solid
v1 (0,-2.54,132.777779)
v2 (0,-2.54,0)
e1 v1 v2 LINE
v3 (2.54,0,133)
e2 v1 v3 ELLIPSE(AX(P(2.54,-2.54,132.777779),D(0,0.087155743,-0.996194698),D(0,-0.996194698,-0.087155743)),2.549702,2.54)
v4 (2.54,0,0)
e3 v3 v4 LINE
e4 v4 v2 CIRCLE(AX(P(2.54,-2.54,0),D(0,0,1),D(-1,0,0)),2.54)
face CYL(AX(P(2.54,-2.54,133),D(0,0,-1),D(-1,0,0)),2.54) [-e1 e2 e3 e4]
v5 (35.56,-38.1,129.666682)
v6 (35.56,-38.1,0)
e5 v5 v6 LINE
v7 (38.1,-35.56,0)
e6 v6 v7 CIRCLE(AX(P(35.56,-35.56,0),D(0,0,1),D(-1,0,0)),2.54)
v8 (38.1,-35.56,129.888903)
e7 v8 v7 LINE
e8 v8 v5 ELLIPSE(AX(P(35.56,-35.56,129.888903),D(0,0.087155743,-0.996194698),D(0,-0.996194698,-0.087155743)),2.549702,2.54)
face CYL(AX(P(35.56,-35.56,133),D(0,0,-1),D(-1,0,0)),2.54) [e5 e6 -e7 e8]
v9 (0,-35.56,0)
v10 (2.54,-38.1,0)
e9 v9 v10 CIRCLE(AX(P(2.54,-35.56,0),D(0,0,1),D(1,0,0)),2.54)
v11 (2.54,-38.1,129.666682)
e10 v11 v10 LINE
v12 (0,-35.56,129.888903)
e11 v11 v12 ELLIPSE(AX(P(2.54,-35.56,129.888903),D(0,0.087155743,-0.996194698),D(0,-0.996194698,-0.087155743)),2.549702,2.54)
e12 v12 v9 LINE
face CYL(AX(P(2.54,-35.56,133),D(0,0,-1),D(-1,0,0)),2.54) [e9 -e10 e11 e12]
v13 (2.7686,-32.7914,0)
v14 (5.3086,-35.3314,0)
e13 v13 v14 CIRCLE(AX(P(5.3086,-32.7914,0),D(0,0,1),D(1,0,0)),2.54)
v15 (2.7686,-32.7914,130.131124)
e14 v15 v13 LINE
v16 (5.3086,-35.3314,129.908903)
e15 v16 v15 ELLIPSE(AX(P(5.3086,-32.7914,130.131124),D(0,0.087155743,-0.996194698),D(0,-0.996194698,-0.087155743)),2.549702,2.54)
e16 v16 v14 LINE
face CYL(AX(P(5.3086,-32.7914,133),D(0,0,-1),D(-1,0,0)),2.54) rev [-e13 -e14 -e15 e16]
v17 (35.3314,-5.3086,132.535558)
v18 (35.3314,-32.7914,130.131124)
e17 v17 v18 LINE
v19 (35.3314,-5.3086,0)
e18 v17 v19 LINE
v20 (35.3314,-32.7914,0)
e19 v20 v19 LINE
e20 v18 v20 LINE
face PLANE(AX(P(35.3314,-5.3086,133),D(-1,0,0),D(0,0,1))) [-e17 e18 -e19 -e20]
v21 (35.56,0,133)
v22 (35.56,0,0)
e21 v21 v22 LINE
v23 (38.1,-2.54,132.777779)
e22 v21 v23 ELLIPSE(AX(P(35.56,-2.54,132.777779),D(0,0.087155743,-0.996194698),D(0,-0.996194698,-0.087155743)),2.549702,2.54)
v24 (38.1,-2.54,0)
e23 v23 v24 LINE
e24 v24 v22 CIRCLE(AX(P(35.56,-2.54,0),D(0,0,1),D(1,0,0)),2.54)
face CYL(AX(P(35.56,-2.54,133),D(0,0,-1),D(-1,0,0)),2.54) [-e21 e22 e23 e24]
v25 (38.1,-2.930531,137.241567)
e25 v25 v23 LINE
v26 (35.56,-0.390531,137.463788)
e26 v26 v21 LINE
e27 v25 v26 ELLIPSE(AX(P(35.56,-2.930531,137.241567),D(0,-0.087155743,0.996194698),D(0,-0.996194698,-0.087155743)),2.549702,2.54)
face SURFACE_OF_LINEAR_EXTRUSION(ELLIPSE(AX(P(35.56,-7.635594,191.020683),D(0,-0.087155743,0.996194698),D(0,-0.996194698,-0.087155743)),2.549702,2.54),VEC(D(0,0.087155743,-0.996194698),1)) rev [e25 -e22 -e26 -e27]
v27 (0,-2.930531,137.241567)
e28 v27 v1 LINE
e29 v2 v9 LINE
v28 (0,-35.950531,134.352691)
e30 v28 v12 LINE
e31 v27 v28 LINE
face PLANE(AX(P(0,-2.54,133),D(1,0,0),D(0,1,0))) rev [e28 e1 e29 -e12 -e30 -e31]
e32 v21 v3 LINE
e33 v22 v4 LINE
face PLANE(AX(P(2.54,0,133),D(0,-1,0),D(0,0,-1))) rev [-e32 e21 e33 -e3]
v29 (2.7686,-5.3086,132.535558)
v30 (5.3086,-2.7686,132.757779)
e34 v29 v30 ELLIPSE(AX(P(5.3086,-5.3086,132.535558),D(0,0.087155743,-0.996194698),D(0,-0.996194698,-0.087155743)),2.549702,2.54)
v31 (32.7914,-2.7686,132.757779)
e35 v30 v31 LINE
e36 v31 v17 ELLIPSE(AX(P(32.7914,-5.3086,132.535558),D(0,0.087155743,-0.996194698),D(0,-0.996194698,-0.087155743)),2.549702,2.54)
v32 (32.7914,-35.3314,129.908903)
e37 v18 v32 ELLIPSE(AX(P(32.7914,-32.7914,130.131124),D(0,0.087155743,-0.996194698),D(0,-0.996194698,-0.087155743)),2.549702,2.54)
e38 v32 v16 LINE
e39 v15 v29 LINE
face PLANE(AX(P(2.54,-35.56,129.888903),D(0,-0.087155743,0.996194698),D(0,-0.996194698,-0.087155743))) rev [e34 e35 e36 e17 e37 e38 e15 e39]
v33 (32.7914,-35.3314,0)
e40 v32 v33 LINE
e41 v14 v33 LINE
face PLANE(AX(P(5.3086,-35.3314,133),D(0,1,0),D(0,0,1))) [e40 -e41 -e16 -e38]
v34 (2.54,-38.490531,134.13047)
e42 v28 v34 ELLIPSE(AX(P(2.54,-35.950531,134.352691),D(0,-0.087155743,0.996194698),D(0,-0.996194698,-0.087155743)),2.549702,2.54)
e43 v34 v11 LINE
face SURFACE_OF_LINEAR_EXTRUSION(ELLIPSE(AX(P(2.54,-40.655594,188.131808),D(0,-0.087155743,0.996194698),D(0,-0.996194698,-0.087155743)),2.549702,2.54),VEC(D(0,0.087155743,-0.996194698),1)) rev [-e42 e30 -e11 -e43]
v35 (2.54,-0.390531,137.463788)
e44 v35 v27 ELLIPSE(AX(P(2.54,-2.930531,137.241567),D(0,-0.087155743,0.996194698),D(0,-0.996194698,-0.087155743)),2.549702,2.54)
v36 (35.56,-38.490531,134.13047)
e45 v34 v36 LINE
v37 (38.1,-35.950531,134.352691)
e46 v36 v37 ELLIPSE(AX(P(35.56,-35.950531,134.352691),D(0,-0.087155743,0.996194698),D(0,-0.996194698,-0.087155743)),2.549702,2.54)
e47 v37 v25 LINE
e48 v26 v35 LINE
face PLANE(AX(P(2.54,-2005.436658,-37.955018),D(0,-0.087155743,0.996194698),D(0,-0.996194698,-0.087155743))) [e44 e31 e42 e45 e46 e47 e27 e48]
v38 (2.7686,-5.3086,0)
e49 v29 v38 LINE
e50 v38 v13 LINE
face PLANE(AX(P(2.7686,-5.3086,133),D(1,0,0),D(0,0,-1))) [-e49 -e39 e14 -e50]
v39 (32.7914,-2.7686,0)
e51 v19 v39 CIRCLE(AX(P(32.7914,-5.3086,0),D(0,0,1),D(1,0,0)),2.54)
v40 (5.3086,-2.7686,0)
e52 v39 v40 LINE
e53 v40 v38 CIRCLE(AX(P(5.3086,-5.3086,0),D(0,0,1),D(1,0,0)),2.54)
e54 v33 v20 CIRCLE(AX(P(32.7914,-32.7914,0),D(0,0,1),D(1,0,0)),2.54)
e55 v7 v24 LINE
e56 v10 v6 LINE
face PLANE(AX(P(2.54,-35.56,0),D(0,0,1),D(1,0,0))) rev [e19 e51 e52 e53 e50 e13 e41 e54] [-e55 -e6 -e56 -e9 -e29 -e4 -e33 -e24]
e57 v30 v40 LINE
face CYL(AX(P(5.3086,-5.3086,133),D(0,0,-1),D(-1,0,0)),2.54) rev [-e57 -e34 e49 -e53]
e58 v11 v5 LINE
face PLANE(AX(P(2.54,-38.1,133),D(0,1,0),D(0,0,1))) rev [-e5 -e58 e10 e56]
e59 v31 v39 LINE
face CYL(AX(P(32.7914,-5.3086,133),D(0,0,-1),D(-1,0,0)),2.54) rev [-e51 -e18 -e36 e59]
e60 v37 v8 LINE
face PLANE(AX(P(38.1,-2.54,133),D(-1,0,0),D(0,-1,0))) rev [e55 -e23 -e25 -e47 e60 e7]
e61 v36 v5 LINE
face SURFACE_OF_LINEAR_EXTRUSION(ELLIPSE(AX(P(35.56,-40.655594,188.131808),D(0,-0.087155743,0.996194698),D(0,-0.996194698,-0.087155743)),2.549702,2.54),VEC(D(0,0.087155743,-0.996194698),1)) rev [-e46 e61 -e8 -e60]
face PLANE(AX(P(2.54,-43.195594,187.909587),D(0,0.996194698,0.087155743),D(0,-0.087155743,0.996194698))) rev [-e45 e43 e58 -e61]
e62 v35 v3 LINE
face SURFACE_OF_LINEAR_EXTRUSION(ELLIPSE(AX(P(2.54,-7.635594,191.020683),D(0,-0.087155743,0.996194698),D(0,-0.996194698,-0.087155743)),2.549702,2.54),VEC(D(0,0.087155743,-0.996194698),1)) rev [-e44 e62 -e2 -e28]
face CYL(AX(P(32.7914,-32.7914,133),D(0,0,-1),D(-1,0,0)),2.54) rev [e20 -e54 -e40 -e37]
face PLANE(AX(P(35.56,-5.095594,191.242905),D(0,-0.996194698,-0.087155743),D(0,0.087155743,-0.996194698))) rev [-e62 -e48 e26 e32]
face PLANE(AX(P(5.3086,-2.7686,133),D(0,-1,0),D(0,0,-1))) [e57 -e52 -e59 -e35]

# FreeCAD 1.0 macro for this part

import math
import FreeCAD as App
import Part
import Sketcher
from FreeCAD import Vector
Q = App.Units.Quantity

doc = App.newDocument("Part")
params = doc.addObject("Spreadsheet::Sheet", "Params")
for row, (alias, value) in enumerate([
    ("sketch1_radius", "0.1 in"),
    ("sketch1_width", "1.3 in"),
    ("sketch1_width2", "1.082 in"),
    ("pad1_length", "133 mm"),
    ("sketch2_width", "1.5 in"),
    ("pad2_length", "4.480839 mm"),
], start=1):
    params.set(f"A{row}", alias)
    params.set(f"B{row}", "=" + value)
    params.setAlias(f"B{row}", alias)

body = doc.addObject("PartDesign::Body", "Body")

sketch1 = body.newObject("Sketcher::SketchObject", "Sketch")
sketch1.AttachmentSupport = (doc.getObject("XY_Plane"), [""])
sketch1.MapMode = "FlatFace"
sketch1.addGeometry([
    Part.LineSegment(Vector(35.6, 0, 0), Vector(2.5, 0, 0)),
    Part.ArcOfCircle(Part.Circle(Vector(2.5, -2.5, 0), Vector(0, 0, 1), 2.5), math.radians(90), math.radians(180)),
    Part.LineSegment(Vector(0, -2.5, 0), Vector(0, -35.6, 0)),
    Part.ArcOfCircle(Part.Circle(Vector(2.5, -35.6, 0), Vector(0, 0, 1), 2.5), math.radians(-180), math.radians(-90)),
    Part.LineSegment(Vector(2.5, -38.1, 0), Vector(35.6, -38.1, 0)),
    Part.ArcOfCircle(Part.Circle(Vector(35.6, -35.6, 0), Vector(0, 0, 1), 2.5), math.radians(-90), math.radians(0)),
    Part.LineSegment(Vector(38.1, -35.6, 0), Vector(38.1, -2.5, 0)),
    Part.ArcOfCircle(Part.Circle(Vector(35.6, -2.5, 0), Vector(0, 0, 1), 2.5), math.radians(0), math.radians(90)),
    Part.LineSegment(Vector(5.3, -2.8, 0), Vector(32.8, -2.8, 0)),
    Part.ArcOfCircle(Part.Circle(Vector(32.8, -5.3, 0), Vector(0, 0, 1), 2.5), math.radians(0), math.radians(90)),
    Part.LineSegment(Vector(35.3, -5.3, 0), Vector(35.3, -32.8, 0)),
    Part.ArcOfCircle(Part.Circle(Vector(32.8, -32.8, 0), Vector(0, 0, 1), 2.5), math.radians(-90), math.radians(0)),
    Part.LineSegment(Vector(32.8, -35.3, 0), Vector(5.3, -35.3, 0)),
    Part.ArcOfCircle(Part.Circle(Vector(5.3, -32.8, 0), Vector(0, 0, 1), 2.5), math.radians(-180), math.radians(-90)),
    Part.LineSegment(Vector(2.8, -32.8, 0), Vector(2.8, -5.3, 0)),
    Part.ArcOfCircle(Part.Circle(Vector(5.3, -5.3, 0), Vector(0, 0, 1), 2.5), math.radians(90), math.radians(180)),
], False)
sketch1.addConstraint([
    Sketcher.Constraint("Tangent", 0, 2, 1, 1),
    Sketcher.Constraint("Tangent", 1, 2, 2, 1),
    Sketcher.Constraint("Tangent", 2, 2, 3, 1),
    Sketcher.Constraint("Tangent", 3, 2, 4, 1),
    Sketcher.Constraint("Tangent", 4, 2, 5, 1),
    Sketcher.Constraint("Tangent", 5, 2, 6, 1),
    Sketcher.Constraint("Tangent", 6, 2, 7, 1),
    Sketcher.Constraint("Tangent", 7, 2, 0, 1),
    Sketcher.Constraint("Tangent", 8, 2, 9, 2),
    Sketcher.Constraint("Tangent", 9, 1, 10, 1),
    Sketcher.Constraint("Tangent", 10, 2, 11, 2),
    Sketcher.Constraint("Tangent", 11, 1, 12, 1),
    Sketcher.Constraint("Tangent", 12, 2, 13, 2),
    Sketcher.Constraint("Tangent", 13, 1, 14, 1),
    Sketcher.Constraint("Tangent", 14, 2, 15, 2),
    Sketcher.Constraint("Tangent", 15, 1, 8, 1),
    Sketcher.Constraint("Horizontal", 0),
    Sketcher.Constraint("Vertical", 2),
    Sketcher.Constraint("Horizontal", 4),
    Sketcher.Constraint("Vertical", 6),
    Sketcher.Constraint("Horizontal", 8),
    Sketcher.Constraint("Vertical", 10),
    Sketcher.Constraint("Horizontal", 12),
    Sketcher.Constraint("Vertical", 14),
    Sketcher.Constraint("Equal", 1, 3),
    Sketcher.Constraint("Equal", 3, 5),
    Sketcher.Constraint("Equal", 5, 7),
    Sketcher.Constraint("Equal", 7, 9),
    Sketcher.Constraint("Equal", 9, 11),
    Sketcher.Constraint("Equal", 11, 13),
    Sketcher.Constraint("Equal", 13, 15),
    Sketcher.Constraint("PointOnObject", 0, 2, -1),
    Sketcher.Constraint("PointOnObject", 1, 2, -2),
    Sketcher.Constraint("Equal", 4, 2),
    Sketcher.Constraint("Equal", 12, 10),
    Sketcher.Constraint("Radius", 1, Q("0.1 in")),
    Sketcher.Constraint("DistanceX", 0, 2, 0, 1, Q("1.3 in")),
    Sketcher.Constraint("DistanceX", 8, 1, 8, 2, Q("1.082 in")),
    Sketcher.Constraint("DistanceX", -1, 1, 9, 3, Q("1.291 in")),
    Sketcher.Constraint("DistanceY", 9, 3, -1, 1, Q("0.209 in")),
])
sketch1.setExpression("Constraints[35]", "Params.sketch1_radius")
sketch1.setExpression("Constraints[36]", "Params.sketch1_width")
sketch1.setExpression("Constraints[37]", "Params.sketch1_width2")
pad1 = body.newObject("PartDesign::Pad", "Pad")
pad1.Profile = sketch1
pad1.setExpression("Length", "Params.pad1_length")

sketch2 = body.newObject("Sketcher::SketchObject", "Sketch001")
sketch2.AttachmentSupport = (doc.getObject("YZ_Plane"), [""])
sketch2.MapMode = "FlatFace"
sketch2.AttachmentOffset = App.Placement(Vector(0, 0, 1.5 * 25.4), App.Rotation())
sketch2.addGeometry([
    Part.LineSegment(Vector(-38.1, 129.7, 0), Vector(0, 133, 0)),
    Part.LineSegment(Vector(0, 133, 0), Vector(-38.1, 133, 0)),
    Part.LineSegment(Vector(-38.1, 133, 0), Vector(-38.1, 129.7, 0)),
], False)
sketch2.addConstraint([
    Sketcher.Constraint("Coincident", 0, 2, 1, 1),
    Sketcher.Constraint("Coincident", 1, 2, 2, 1),
    Sketcher.Constraint("Coincident", 2, 2, 0, 1),
    Sketcher.Constraint("Horizontal", 1),
    Sketcher.Constraint("Vertical", 2),
    Sketcher.Constraint("PointOnObject", 0, 2, -2),
    Sketcher.Constraint("DistanceX", 1, 2, 1, 1, Q("1.5 in")),
    Sketcher.Constraint("Angle", 0, Q("5 deg")),
    Sketcher.Constraint("DistanceY", -1, 1, 0, 2, Q("133 mm")),
])
sketch2.setExpression("Constraints[6]", "Params.sketch2_width")
pocket1 = body.newObject("PartDesign::Pocket", "Pocket")
pocket1.Profile = sketch2
pocket1.Type = "ThroughAll"

sketch3 = body.newObject("Sketcher::SketchObject", "Sketch002")
sketch3.Placement = App.Placement(Vector(0, -11.547604, 131.989716), App.Rotation(Vector(1, 0, 0), Vector(0, 0.996194698, 0.087155743), Vector(0, -0.087155743, 0.996194698), "ZXY"))
sketch3.addGeometry([
    Part.LineSegment(Vector(2.54, -26.653822, 0), Vector(35.56, -26.653822, 0)),
    Part.BSplineCurve([Vector(35.56, -26.653822, 0), Vector(38.1, -26.653822, 0), Vector(38.1, -24.10412, 0)], [3, 3], [0, 1.570796327], False, 2, [1, 0.707106781, 1], False),
    Part.LineSegment(Vector(38.1, -24.10412, 0), Vector(38.1, 9.042011, 0)),
    Part.BSplineCurve([Vector(38.1, 9.042011, 0), Vector(38.1, 11.591714, 0), Vector(35.56, 11.591714, 0)], [3, 3], [1.570796327, 3.141592654], False, 2, [1, 0.707106781, 1], False),
    Part.LineSegment(Vector(35.56, 11.591714, 0), Vector(2.54, 11.591714, 0)),
    Part.BSplineCurve([Vector(2.54, 11.591714, 0), Vector(0, 11.591714, 0), Vector(0, 9.042011, 0)], [3, 3], [0, 1.570796327], False, 2, [1, 0.707106781, 1], False),
    Part.LineSegment(Vector(0, 9.042011, 0), Vector(0, -24.10412, 0)),
    Part.BSplineCurve([Vector(0, -24.10412, 0), Vector(0, -26.653822, 0), Vector(2.54, -26.653822, 0)], [3, 3], [4.71238898, 6.283185307], False, 2, [1, 0.707106781, 1], False),
], False)
sketch3.addConstraint([
    Sketcher.Constraint("Block", 1),
    Sketcher.Constraint("Block", 3),
    Sketcher.Constraint("Block", 5),
    Sketcher.Constraint("Block", 7),
    Sketcher.Constraint("Coincident", 0, 2, 1, 1),
    Sketcher.Constraint("Coincident", 1, 2, 2, 1),
    Sketcher.Constraint("Coincident", 2, 2, 3, 1),
    Sketcher.Constraint("Coincident", 3, 2, 4, 1),
    Sketcher.Constraint("Coincident", 4, 2, 5, 1),
    Sketcher.Constraint("Coincident", 5, 2, 6, 1),
    Sketcher.Constraint("Coincident", 6, 2, 7, 1),
    Sketcher.Constraint("Coincident", 7, 2, 0, 1),
])
pad2 = body.newObject("PartDesign::Pad", "Pad001")
pad2.Profile = sketch3
pad2.setExpression("Length", "Params.pad2_length")

doc.recompute()
